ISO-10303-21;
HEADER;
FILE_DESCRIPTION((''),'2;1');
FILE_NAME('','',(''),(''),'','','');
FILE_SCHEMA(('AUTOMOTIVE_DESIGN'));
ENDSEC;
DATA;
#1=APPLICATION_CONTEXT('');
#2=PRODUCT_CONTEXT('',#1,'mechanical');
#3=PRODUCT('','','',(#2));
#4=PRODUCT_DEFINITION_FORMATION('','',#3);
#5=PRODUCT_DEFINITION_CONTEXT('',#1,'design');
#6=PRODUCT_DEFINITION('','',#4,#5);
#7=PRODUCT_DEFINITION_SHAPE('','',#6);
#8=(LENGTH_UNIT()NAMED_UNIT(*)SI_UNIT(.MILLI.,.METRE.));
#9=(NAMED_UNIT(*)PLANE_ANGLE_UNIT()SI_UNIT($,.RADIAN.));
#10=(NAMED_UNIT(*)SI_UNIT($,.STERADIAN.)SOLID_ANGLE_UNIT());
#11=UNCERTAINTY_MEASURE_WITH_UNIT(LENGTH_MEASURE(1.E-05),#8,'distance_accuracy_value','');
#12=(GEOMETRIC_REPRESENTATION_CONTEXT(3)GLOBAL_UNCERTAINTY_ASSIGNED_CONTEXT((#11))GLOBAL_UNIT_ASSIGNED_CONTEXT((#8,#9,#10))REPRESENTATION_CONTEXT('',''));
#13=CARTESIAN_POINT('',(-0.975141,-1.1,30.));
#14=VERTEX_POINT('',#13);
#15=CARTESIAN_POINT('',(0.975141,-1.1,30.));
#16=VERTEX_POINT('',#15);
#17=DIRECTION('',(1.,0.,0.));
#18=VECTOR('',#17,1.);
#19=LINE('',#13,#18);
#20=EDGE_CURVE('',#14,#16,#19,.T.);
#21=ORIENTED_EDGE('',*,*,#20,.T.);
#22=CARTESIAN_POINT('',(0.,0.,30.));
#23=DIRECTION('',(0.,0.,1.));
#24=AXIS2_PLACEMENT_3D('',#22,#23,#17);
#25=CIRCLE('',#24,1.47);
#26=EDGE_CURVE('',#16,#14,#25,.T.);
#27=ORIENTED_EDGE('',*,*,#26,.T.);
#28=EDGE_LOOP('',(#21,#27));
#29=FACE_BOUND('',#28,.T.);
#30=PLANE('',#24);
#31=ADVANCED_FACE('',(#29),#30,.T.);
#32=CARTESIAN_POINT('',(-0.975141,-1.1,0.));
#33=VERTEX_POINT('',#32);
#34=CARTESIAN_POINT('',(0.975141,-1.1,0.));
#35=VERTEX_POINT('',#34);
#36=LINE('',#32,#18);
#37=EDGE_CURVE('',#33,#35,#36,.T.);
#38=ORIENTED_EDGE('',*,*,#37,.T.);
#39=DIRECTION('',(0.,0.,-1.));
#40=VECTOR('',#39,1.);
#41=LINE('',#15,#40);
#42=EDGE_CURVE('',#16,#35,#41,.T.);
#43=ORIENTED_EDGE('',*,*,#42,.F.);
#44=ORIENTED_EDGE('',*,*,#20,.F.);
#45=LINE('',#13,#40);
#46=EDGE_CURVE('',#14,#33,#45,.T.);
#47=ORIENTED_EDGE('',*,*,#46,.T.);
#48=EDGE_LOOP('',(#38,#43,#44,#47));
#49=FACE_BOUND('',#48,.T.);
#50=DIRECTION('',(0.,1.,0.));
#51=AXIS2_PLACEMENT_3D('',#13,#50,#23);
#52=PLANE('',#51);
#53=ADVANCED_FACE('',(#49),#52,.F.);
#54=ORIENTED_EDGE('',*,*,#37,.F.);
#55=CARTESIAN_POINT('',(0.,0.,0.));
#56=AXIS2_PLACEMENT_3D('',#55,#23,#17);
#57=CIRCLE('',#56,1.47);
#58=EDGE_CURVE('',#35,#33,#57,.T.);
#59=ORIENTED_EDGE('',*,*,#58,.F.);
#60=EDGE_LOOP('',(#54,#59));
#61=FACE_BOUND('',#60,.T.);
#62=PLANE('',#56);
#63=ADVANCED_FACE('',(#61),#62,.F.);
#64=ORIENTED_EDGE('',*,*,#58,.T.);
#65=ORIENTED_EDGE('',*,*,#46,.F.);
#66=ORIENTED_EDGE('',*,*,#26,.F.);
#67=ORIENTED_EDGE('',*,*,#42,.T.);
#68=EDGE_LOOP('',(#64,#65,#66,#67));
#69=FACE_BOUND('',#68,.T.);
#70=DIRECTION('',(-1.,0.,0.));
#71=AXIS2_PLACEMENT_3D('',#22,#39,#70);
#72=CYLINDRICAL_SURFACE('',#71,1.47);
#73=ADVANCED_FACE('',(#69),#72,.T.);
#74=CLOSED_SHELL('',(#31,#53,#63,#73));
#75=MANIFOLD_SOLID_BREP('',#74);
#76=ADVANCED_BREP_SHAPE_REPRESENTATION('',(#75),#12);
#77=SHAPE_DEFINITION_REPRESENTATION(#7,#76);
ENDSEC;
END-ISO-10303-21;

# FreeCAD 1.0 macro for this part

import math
import FreeCAD as App
import Part
import Sketcher

V = App.Vector

doc = App.newDocument("Part")
params = doc.addObject("Spreadsheet::Sheet", "Params")
for row, (alias, value) in enumerate([
    ("sketch1_radius", "1.47 mm"),
    ("pad1_length", "30 mm"),
], start=1):
    params.set(f"A{row}", alias)
    params.set(f"B{row}", "=" + value)
    params.setAlias(f"B{row}", alias)

body = doc.addObject("PartDesign::Body", "Body")

# Sketch on XY plane
sketch1 = doc.addObject("Sketcher::SketchObject", "Sketch")
body.addObject(sketch1)
sketch1.AttachmentSupport = (doc.XY_Plane, [""])
sketch1.MapMode = "FlatFace"
sketch1.addGeometry([
    Part.LineSegment(V(-0.975141, -1.1, 0), V(0.975141, -1.1, 0)),
    Part.ArcOfCircle(Part.Circle(V(0, 0, 0), V(0, 0, 1), 1.47), math.radians(-48.443274), math.radians(228.443274)),
], False)
sketch1.addConstraint([
    Sketcher.Constraint("Coincident", 0, 1, 1, 2),
    Sketcher.Constraint("Coincident", 1, 1, 0, 2),
    Sketcher.Constraint("Horizontal", 0),
    Sketcher.Constraint("Coincident", 1, 3, -1, 1),
    Sketcher.Constraint("Radius", 1, 1.47),
    Sketcher.Constraint("DistanceY", 0, 1, -1, 1, 1.1),
])
sketch1.setExpression("Constraints[4]", "Params.sketch1_radius")
pad1 = doc.addObject("PartDesign::Pad", "Pad")
body.addObject(pad1)
pad1.Profile = sketch1
pad1.setExpression("Length", "Params.pad1_length")

doc.recompute()
